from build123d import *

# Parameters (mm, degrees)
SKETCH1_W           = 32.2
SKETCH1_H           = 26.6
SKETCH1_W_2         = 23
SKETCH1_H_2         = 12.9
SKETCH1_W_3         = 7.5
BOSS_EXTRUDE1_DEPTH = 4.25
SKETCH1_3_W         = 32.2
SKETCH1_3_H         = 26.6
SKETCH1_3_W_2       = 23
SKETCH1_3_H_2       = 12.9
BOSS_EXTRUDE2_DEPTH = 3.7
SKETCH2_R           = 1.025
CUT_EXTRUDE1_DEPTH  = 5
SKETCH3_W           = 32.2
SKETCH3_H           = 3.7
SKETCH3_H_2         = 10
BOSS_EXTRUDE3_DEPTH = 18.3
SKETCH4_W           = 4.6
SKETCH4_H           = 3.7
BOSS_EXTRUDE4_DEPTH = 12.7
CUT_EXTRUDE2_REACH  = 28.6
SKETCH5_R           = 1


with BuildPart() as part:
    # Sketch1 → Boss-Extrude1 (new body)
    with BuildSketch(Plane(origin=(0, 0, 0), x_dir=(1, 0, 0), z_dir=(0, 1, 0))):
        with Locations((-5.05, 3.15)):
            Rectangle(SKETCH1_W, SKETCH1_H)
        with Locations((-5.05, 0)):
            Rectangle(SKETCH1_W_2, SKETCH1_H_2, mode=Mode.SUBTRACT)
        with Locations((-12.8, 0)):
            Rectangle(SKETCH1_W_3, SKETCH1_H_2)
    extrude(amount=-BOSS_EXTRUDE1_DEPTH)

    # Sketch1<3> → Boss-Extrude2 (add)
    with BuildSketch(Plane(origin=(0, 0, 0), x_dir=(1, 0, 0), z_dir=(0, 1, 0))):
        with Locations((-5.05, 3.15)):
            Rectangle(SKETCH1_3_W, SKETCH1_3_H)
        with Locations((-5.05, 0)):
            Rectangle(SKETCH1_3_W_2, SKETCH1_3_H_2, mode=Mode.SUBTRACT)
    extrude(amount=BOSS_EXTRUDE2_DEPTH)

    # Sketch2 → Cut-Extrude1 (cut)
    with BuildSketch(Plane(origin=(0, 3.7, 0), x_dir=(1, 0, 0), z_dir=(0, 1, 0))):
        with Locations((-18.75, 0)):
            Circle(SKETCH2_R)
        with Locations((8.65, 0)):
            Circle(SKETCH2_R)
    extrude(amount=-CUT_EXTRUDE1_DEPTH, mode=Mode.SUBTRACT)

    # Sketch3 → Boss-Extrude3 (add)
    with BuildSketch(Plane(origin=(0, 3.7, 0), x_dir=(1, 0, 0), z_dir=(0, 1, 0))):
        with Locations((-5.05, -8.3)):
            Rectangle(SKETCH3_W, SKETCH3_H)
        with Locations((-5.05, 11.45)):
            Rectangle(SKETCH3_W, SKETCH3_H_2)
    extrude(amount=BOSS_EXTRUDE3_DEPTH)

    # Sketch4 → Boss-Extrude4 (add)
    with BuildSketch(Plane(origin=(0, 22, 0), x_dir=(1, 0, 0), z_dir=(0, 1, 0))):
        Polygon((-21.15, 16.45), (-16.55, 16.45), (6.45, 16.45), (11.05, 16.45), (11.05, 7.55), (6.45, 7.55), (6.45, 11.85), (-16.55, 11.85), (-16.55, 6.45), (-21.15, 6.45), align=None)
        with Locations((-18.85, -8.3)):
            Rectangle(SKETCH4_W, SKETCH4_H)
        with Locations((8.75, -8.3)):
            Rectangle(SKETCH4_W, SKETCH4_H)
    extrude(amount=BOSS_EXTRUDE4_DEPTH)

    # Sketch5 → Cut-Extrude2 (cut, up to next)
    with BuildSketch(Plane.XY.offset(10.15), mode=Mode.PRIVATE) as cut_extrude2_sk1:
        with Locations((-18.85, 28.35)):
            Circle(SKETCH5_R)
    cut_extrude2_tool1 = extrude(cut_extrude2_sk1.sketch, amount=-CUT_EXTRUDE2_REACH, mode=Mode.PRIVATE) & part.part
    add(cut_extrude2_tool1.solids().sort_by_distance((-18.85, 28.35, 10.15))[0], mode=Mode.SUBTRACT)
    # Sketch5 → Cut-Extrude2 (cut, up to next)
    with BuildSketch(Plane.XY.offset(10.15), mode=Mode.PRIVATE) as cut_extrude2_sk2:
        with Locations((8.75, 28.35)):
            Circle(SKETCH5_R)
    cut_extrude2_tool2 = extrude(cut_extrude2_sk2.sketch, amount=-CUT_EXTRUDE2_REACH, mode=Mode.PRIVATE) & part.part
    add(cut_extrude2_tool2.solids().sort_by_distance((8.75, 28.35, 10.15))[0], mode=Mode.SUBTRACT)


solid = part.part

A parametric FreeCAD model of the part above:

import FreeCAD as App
import Part
import Sketcher


def add_polygon(sketch, points):
    """Adds a closed chain of lines whose ends are joined by coincident constraints."""
    first, n = sketch.GeometryCount, len(points)
    for a, b in zip(points, points[1:] + points[:1]):
        sketch.addGeometry(Part.LineSegment(App.Vector(*a, 0), App.Vector(*b, 0)), False)
    for i in range(n):
        sketch.addConstraint(Sketcher.Constraint("Coincident", first + i, 2, first + (i + 1) % n, 1))

doc = App.newDocument("Part")
params = doc.addObject("Spreadsheet::Sheet", "Params")
for row, (alias, value) in enumerate([
    ("sketch1_width", "32.2 mm"),
    ("sketch1_width2", "15.5 mm"),
    ("sketch1_height", "26.6 mm"),
    ("sketch1_height2", "12.9 mm"),
    ("pad1_length", "4.25 mm"),
    ("sketch2_width", "23 mm"),
    ("sketch2_width2", "32.2 mm"),
    ("sketch2_height", "26.6 mm"),
    ("sketch2_height2", "12.9 mm"),
    ("pad2_length", "3.7 mm"),
    ("sketch3_diameter", "2.05 mm"),
    ("pocket1_length", "5 mm"),
    ("sketch4_height", "10 mm"),
    ("sketch4_width", "32.2 mm"),
    ("sketch4_height2", "3.7 mm"),
    ("pad3_length", "18.3 mm"),
    ("sketch5_width", "23 mm"),
    ("sketch5_height", "10 mm"),
    ("sketch5_width2", "32.2 mm"),
    ("sketch5_height2", "5.4 mm"),
    ("sketch5_height3", "4.3 mm"),
    ("pad4_length", "12.7 mm"),
    ("sketch6_diameter", "2 mm"),
    ("sketch7_diameter", "2 mm"),
], start=1):
    params.set(f"A{row}", alias)
    params.set(f"B{row}", "=" + value)
    params.setAlias(f"B{row}", alias)

body = doc.addObject("PartDesign::Body", "Body")

sketch1 = body.newObject("Sketcher::SketchObject", "Sketch")
sketch1.AttachmentSupport = (doc.getObject("XZ_Plane"), [""])
sketch1.MapMode = "FlatFace"
add_polygon(sketch1, [(-21.15, -16.45), (-21.15, 10.15), (11.05, 10.15), (11.05, -16.45)])
add_polygon(sketch1, [(6.45, 6.45), (-9.05, 6.45), (-9.05, -6.45), (6.45, -6.45)])
sketch1.addConstraint([
    Sketcher.Constraint("Vertical", 0),
    Sketcher.Constraint("Horizontal", 1),
    Sketcher.Constraint("Vertical", 2),
    Sketcher.Constraint("Horizontal", 3),
    Sketcher.Constraint("Horizontal", 4),
    Sketcher.Constraint("Vertical", 5),
    Sketcher.Constraint("Horizontal", 6),
    Sketcher.Constraint("Vertical", 7),
    Sketcher.Constraint("DistanceX", 1, 1, 1, 2, 32.2),
    Sketcher.Constraint("DistanceX", 4, 2, 4, 1, 15.5),
    Sketcher.Constraint("DistanceY", 0, 1, 0, 2, 26.6),
    Sketcher.Constraint("DistanceY", 5, 2, 5, 1, 12.9),
    Sketcher.Constraint("DistanceY", 3, 2, 5, 2, 10.0),
    Sketcher.Constraint("DistanceX", 0, 2, 4, 2, 12.1),
    Sketcher.Constraint("DistanceX", 0, 2, -1, 1, 21.15),
    Sketcher.Constraint("DistanceY", -1, 1, 0, 2, 10.15),
])
sketch1.setExpression("Constraints[16]", "Params.sketch1_width")
sketch1.setExpression("Constraints[17]", "Params.sketch1_width2")
sketch1.setExpression("Constraints[18]", "Params.sketch1_height")
sketch1.setExpression("Constraints[19]", "Params.sketch1_height2")
pad1 = body.newObject("PartDesign::Pad", "Pad")
pad1.Profile = sketch1
pad1.setExpression("Length", "Params.pad1_length")

sketch2 = body.newObject("Sketcher::SketchObject", "Sketch001")
sketch2.AttachmentSupport = (doc.getObject("XZ_Plane"), [""])
sketch2.MapMode = "FlatFace"
add_polygon(sketch2, [(-21.15, -16.45), (-21.15, 10.15), (11.05, 10.15), (11.05, -16.45)])
add_polygon(sketch2, [(6.45, 6.45), (-16.55, 6.45), (-16.55, -6.45), (6.45, -6.45)])
sketch2.addConstraint([
    Sketcher.Constraint("Vertical", 0),
    Sketcher.Constraint("Horizontal", 1),
    Sketcher.Constraint("Vertical", 2),
    Sketcher.Constraint("Horizontal", 3),
    Sketcher.Constraint("Horizontal", 4),
    Sketcher.Constraint("Vertical", 5),
    Sketcher.Constraint("Horizontal", 6),
    Sketcher.Constraint("Vertical", 7),
    Sketcher.Constraint("DistanceX", 4, 2, 4, 1, 23.0),
    Sketcher.Constraint("DistanceX", 1, 1, 1, 2, 32.2),
    Sketcher.Constraint("DistanceY", 0, 1, 0, 2, 26.6),
    Sketcher.Constraint("DistanceY", 5, 2, 5, 1, 12.9),
    Sketcher.Constraint("DistanceY", 3, 2, 5, 2, 10.0),
    Sketcher.Constraint("DistanceX", 0, 2, 4, 2, 4.6),
    Sketcher.Constraint("DistanceX", 0, 2, -1, 1, 21.15),
    Sketcher.Constraint("DistanceY", -1, 1, 0, 2, 10.15),
])
sketch2.setExpression("Constraints[16]", "Params.sketch2_width")
sketch2.setExpression("Constraints[17]", "Params.sketch2_width2")
sketch2.setExpression("Constraints[18]", "Params.sketch2_height")
sketch2.setExpression("Constraints[19]", "Params.sketch2_height2")
pad2 = body.newObject("PartDesign::Pad", "Pad001")
pad2.Profile = sketch2
pad2.setExpression("Length", "Params.pad2_length")
pad2.Reversed = True

sketch3 = body.newObject("Sketcher::SketchObject", "Sketch002")
sketch3.AttachmentSupport = (doc.getObject("XZ_Plane"), [""])
sketch3.MapMode = "FlatFace"
sketch3.AttachmentOffset = App.Placement(App.Vector(0, 0, -3.7), App.Rotation())
sketch3.addGeometry([
    Part.Circle(App.Vector(-18.75, 0, 0), App.Vector(0, 0, 1), 1.025),
    Part.Circle(App.Vector(8.65, 0, 0), App.Vector(0, 0, 1), 1.025),
], False)
sketch3.addConstraint([
    Sketcher.Constraint("Equal", 0, 1),
    Sketcher.Constraint("PointOnObject", 0, 3, -1),
    Sketcher.Constraint("PointOnObject", 1, 3, -1),
    Sketcher.Constraint("Diameter", 0, 2.05),
    Sketcher.Constraint("DistanceX", 0, 3, 1, 3, 27.4),
    Sketcher.Constraint("DistanceX", 0, 3, -1, 1, 18.75),
])
sketch3.setExpression("Constraints[3]", "Params.sketch3_diameter")
pocket1 = body.newObject("PartDesign::Pocket", "Pocket")
pocket1.Profile = sketch3
pocket1.setExpression("Length", "Params.pocket1_length")
pocket1.Reversed = True

sketch4 = body.newObject("Sketcher::SketchObject", "Sketch003")
sketch4.AttachmentSupport = (doc.getObject("XZ_Plane"), [""])
sketch4.MapMode = "FlatFace"
sketch4.AttachmentOffset = App.Placement(App.Vector(0, 0, -3.7), App.Rotation())
add_polygon(sketch4, [(-21.15, 6.45), (-21.15, 10.15), (11.05, 10.15), (11.05, 6.45)])
add_polygon(sketch4, [(-21.15, -16.45), (-21.15, -6.45), (11.05, -6.45), (11.05, -16.45)])
sketch4.addConstraint([
    Sketcher.Constraint("Vertical", 0),
    Sketcher.Constraint("Horizontal", 1),
    Sketcher.Constraint("Vertical", 2),
    Sketcher.Constraint("Horizontal", 3),
    Sketcher.Constraint("Vertical", 4),
    Sketcher.Constraint("Horizontal", 5),
    Sketcher.Constraint("Vertical", 6),
    Sketcher.Constraint("Horizontal", 7),
    Sketcher.Constraint("Symmetric", 3, 2, 4, 2, -1),
    Sketcher.Constraint("Vertical", 2, 2, 5, 2),
    Sketcher.Constraint("DistanceY", 4, 1, 4, 2, 10.0),
    Sketcher.Constraint("DistanceX", 1, 1, 1, 2, 32.2),
    Sketcher.Constraint("DistanceY", 0, 1, 0, 2, 3.7),
    Sketcher.Constraint("DistanceY", 4, 2, 3, 2, 12.9),
    Sketcher.Constraint("DistanceX", 0, 2, -1, 1, 21.15),
])
sketch4.setExpression("Constraints[18]", "Params.sketch4_height")
sketch4.setExpression("Constraints[19]", "Params.sketch4_width")
sketch4.setExpression("Constraints[20]", "Params.sketch4_height2")
pad3 = body.newObject("PartDesign::Pad", "Pad002")
pad3.Profile = sketch4
pad3.setExpression("Length", "Params.pad3_length")
pad3.Reversed = True

sketch5 = body.newObject("Sketcher::SketchObject", "Sketch004")
sketch5.AttachmentSupport = (doc.getObject("XZ_Plane"), [""])
sketch5.MapMode = "FlatFace"
sketch5.AttachmentOffset = App.Placement(App.Vector(0, 0, -22), App.Rotation())
add_polygon(sketch5, [(11.05, -16.45), (-21.15, -16.45), (-21.15, -6.45), (-16.55, -6.45), (-16.55, -11.85), (6.45, -11.85), (6.45, -7.55), (11.05, -7.55)])
add_polygon(sketch5, [(-21.15, 6.45), (-21.15, 10.15), (-16.55, 10.15), (-16.55, 6.45)])
add_polygon(sketch5, [(6.45, 6.45), (6.45, 10.15), (11.05, 10.15), (11.05, 6.45)])
sketch5.addConstraint([
    Sketcher.Constraint("Horizontal", 0),
    Sketcher.Constraint("Vertical", 1),
    Sketcher.Constraint("Horizontal", 2),
    Sketcher.Constraint("Vertical", 3),
    Sketcher.Constraint("Horizontal", 4),
    Sketcher.Constraint("Vertical", 5),
    Sketcher.Constraint("Horizontal", 6),
    Sketcher.Constraint("Vertical", 7),
    Sketcher.Constraint("Vertical", 8),
    Sketcher.Constraint("Horizontal", 9),
    Sketcher.Constraint("Vertical", 10),
    Sketcher.Constraint("Horizontal", 11),
    Sketcher.Constraint("Vertical", 12),
    Sketcher.Constraint("Horizontal", 13),
    Sketcher.Constraint("Vertical", 14),
    Sketcher.Constraint("Horizontal", 15),
    Sketcher.Constraint("Symmetric", 2, 2, 10, 2, -1),
    Sketcher.Constraint("Horizontal", 9, 2, 12, 2),
    Sketcher.Constraint("Horizontal", 11, 2, 14, 2),
    Sketcher.Constraint("Vertical", 1, 2, 8, 2),
    Sketcher.Constraint("Vertical", 5, 2, 12, 2),
    Sketcher.Constraint("Vertical", 7, 2, 13, 2),
    Sketcher.Constraint("Equal", 2, 6),
    Sketcher.Constraint("DistanceX", 4, 1, 4, 2, 23.0),
    Sketcher.Constraint("DistanceY", 1, 1, 1, 2, 10.0),
    Sketcher.Constraint("DistanceX", 0, 2, 0, 1, 32.2),
    Sketcher.Constraint("DistanceY", 3, 2, 3, 1, 5.4),
    Sketcher.Constraint("DistanceY", 5, 1, 5, 2, 4.3),
    Sketcher.Constraint("DistanceY", 8, 1, 8, 2, 3.7),
    Sketcher.Constraint("DistanceY", 3, 2, 8, 2, 22.0),
    Sketcher.Constraint("DistanceX", 0, 2, -1, 1, 21.15),
])
sketch5.setExpression("Constraints[39]", "Params.sketch5_width")
sketch5.setExpression("Constraints[40]", "Params.sketch5_height")
sketch5.setExpression("Constraints[41]", "Params.sketch5_width2")
sketch5.setExpression("Constraints[42]", "Params.sketch5_height2")
sketch5.setExpression("Constraints[43]", "Params.sketch5_height3")
pad4 = body.newObject("PartDesign::Pad", "Pad003")
pad4.Profile = sketch5
pad4.setExpression("Length", "Params.pad4_length")
pad4.Reversed = True

sketch6 = body.newObject("Sketcher::SketchObject", "Sketch005")
sketch6.AttachmentSupport = (doc.getObject("XY_Plane"), [""])
sketch6.MapMode = "FlatFace"
sketch6.AttachmentOffset = App.Placement(App.Vector(0, 0, 10.15), App.Rotation())
sketch6.addGeometry(Part.Circle(App.Vector(-18.85, 28.35, 0), App.Vector(0, 0, 1), 1), False)
sketch6.addConstraint([
    Sketcher.Constraint("Diameter", 0, 2.0),
    Sketcher.Constraint("DistanceX", 0, 3, -1, 1, 18.85),
    Sketcher.Constraint("DistanceY", -1, 1, 0, 3, 28.35),
])
sketch6.setExpression("Constraints[0]", "Params.sketch6_diameter")
pocket2 = body.newObject("PartDesign::Pocket", "Pocket001")
pocket2.Profile = sketch6
pocket2.Type = "UpToFirst"

sketch7 = body.newObject("Sketcher::SketchObject", "Sketch006")
sketch7.AttachmentSupport = (doc.getObject("XY_Plane"), [""])
sketch7.MapMode = "FlatFace"
sketch7.AttachmentOffset = App.Placement(App.Vector(0, 0, 10.15), App.Rotation())
sketch7.addGeometry(Part.Circle(App.Vector(8.75, 28.35, 0), App.Vector(0, 0, 1), 1), False)
sketch7.addConstraint([
    Sketcher.Constraint("Diameter", 0, 2.0),
    Sketcher.Constraint("DistanceX", -1, 1, 0, 3, 8.75),
    Sketcher.Constraint("DistanceY", -1, 1, 0, 3, 28.35),
])
sketch7.setExpression("Constraints[0]", "Params.sketch7_diameter")
pocket3 = body.newObject("PartDesign::Pocket", "Pocket002")
pocket3.Profile = sketch7
pocket3.Type = "UpToFirst"

doc.recompute()
